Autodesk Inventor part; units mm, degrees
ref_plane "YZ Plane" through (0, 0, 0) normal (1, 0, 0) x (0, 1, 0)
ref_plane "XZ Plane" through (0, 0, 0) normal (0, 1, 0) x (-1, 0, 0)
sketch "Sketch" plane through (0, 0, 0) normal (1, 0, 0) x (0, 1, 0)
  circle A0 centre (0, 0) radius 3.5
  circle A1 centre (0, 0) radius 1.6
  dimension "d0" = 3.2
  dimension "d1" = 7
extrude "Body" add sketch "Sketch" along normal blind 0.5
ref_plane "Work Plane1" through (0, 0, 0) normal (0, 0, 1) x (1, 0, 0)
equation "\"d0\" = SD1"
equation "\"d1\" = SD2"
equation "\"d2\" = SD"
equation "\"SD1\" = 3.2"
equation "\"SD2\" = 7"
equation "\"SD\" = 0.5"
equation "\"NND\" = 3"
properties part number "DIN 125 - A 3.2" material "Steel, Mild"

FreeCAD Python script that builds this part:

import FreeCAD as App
import Part
import Sketcher

doc = App.newDocument("Part")
body = doc.addObject("PartDesign::Body", "Body")

# Sketch on YZ plane
sketch1 = doc.addObject("Sketcher::SketchObject", "Sketch")
body.addObject(sketch1)
sketch1.AttachmentSupport = (doc.YZ_Plane, [""])
sketch1.MapMode = "FlatFace"
sketch1.addGeometry([
    Part.Circle(App.Vector(0, 0, 0), App.Vector(0, 0, 1), 3.5),
    Part.Circle(App.Vector(0, 0, 0), App.Vector(0, 0, 1), 1.6),
], False)
sketch1.addConstraint([
    Sketcher.Constraint("Coincident", 0, 3, -1, 1),
    Sketcher.Constraint("Coincident", 1, 3, -1, 1),
    Sketcher.Constraint("Diameter", 0, 7.0),
    Sketcher.Constraint("Diameter", 1, 3.2),
])
pad1 = doc.addObject("PartDesign::Pad", "Pad")
body.addObject(pad1)
pad1.Profile = sketch1
pad1.Length = 0.5

doc.recompute()
